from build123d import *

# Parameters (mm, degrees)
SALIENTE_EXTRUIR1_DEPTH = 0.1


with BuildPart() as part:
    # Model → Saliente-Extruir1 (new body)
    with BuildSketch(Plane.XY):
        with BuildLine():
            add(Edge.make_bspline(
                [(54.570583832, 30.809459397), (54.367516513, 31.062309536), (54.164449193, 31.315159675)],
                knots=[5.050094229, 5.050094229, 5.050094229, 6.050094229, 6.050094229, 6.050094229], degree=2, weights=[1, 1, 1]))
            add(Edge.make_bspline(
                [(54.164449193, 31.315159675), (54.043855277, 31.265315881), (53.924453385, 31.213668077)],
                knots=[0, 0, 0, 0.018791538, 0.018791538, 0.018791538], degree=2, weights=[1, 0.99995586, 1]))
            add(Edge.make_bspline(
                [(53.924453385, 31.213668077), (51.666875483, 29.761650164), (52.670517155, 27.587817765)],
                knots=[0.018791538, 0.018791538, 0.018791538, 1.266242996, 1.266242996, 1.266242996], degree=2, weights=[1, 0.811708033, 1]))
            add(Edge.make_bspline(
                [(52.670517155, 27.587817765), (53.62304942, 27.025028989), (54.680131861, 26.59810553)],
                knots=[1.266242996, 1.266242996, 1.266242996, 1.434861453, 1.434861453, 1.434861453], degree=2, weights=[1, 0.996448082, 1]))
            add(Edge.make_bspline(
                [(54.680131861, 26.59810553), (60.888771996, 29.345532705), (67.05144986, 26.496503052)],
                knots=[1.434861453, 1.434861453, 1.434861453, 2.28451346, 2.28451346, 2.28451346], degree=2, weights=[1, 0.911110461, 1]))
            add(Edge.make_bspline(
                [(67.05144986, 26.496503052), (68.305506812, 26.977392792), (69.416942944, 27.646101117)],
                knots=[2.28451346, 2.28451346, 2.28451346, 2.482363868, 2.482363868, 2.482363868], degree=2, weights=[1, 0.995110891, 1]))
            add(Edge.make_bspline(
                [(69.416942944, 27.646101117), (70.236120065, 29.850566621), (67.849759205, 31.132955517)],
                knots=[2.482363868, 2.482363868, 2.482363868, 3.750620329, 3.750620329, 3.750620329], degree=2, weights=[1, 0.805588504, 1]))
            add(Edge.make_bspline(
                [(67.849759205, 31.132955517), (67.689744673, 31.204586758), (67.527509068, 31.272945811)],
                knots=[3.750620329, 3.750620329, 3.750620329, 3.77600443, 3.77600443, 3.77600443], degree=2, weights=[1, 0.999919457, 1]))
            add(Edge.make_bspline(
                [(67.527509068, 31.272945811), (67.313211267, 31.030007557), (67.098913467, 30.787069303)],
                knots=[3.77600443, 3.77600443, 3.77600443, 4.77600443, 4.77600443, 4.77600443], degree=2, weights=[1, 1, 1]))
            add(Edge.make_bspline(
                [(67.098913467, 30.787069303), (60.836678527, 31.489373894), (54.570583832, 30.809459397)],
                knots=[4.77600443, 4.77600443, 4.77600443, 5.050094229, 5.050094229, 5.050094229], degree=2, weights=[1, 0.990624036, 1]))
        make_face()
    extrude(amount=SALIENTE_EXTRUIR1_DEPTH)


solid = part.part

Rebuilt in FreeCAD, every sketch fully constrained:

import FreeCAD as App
import Part
import Sketcher
from FreeCAD import Vector

doc = App.newDocument("Part")
body = doc.addObject("PartDesign::Body", "Body")

sketch1 = body.newObject("Sketcher::SketchObject", "Sketch")
sketch1.AttachmentSupport = (doc.getObject("XY_Plane"), [""])
sketch1.MapMode = "FlatFace"
sketch1.addGeometry(Part.BSplineCurve([Vector(54.570584, 30.809459, 0), Vector(54.367517, 31.06231, 0), Vector(54.164449, 31.31516, 0)], [3, 3], [5.050094229, 6.050094229], False, 2, [1, 1, 1], False), False)
sketch1.addGeometry(Part.BSplineCurve([Vector(54.164449, 31.31516, 0), Vector(54.043855, 31.265316, 0), Vector(53.924453, 31.213668, 0)], [3, 3], [0, 0.018791538], False, 2, [1, 0.99995586, 1], False), False)
sketch1.addGeometry(Part.BSplineCurve([Vector(53.924453, 31.213668, 0), Vector(51.666875, 29.76165, 0), Vector(52.670517, 27.587818, 0)], [3, 3], [0.018791538, 1.266242996], False, 2, [1, 0.811708033, 1], False), False)
sketch1.addGeometry(Part.BSplineCurve([Vector(52.670517, 27.587818, 0), Vector(53.623049, 27.025029, 0), Vector(54.680132, 26.598106, 0)], [3, 3], [1.266242996, 1.434861453], False, 2, [1, 0.996448082, 1], False), False)
sketch1.addGeometry(Part.BSplineCurve([Vector(54.680132, 26.598106, 0), Vector(60.888772, 29.345533, 0), Vector(67.05145, 26.496503, 0)], [3, 3], [1.434861453, 2.28451346], False, 2, [1, 0.911110461, 1], False), False)
sketch1.addGeometry(Part.BSplineCurve([Vector(67.05145, 26.496503, 0), Vector(68.305507, 26.977393, 0), Vector(69.416943, 27.646101, 0)], [3, 3], [2.28451346, 2.482363868], False, 2, [1, 0.995110891, 1], False), False)
sketch1.addGeometry(Part.BSplineCurve([Vector(69.416943, 27.646101, 0), Vector(70.23612, 29.850567, 0), Vector(67.849759, 31.132956, 0)], [3, 3], [2.482363868, 3.750620329], False, 2, [1, 0.805588504, 1], False), False)
sketch1.addGeometry(Part.BSplineCurve([Vector(67.849759, 31.132956, 0), Vector(67.689745, 31.204587, 0), Vector(67.527509, 31.272946, 0)], [3, 3], [3.750620329, 3.77600443], False, 2, [1, 0.999919457, 1], False), False)
sketch1.addGeometry(Part.BSplineCurve([Vector(67.527509, 31.272946, 0), Vector(67.313211, 31.030008, 0), Vector(67.098913, 30.787069, 0)], [3, 3], [3.77600443, 4.77600443], False, 2, [1, 1, 1], False), False)
sketch1.addGeometry(Part.BSplineCurve([Vector(67.098913, 30.787069, 0), Vector(60.836679, 31.489374, 0), Vector(54.570584, 30.809459, 0)], [3, 3], [4.77600443, 5.050094229], False, 2, [1, 0.990624036, 1], False), False)
sketch1.addConstraint(Sketcher.Constraint("Block", 0))
sketch1.addConstraint(Sketcher.Constraint("Block", 1))
sketch1.addConstraint(Sketcher.Constraint("Block", 2))
sketch1.addConstraint(Sketcher.Constraint("Block", 3))
sketch1.addConstraint(Sketcher.Constraint("Block", 4))
sketch1.addConstraint(Sketcher.Constraint("Block", 5))
sketch1.addConstraint(Sketcher.Constraint("Block", 6))
sketch1.addConstraint(Sketcher.Constraint("Block", 7))
sketch1.addConstraint(Sketcher.Constraint("Block", 8))
sketch1.addConstraint(Sketcher.Constraint("Block", 9))
pad1 = body.newObject("PartDesign::Pad", "Pad")
pad1.Profile = sketch1
pad1.Length = 0.1

doc.recompute()
